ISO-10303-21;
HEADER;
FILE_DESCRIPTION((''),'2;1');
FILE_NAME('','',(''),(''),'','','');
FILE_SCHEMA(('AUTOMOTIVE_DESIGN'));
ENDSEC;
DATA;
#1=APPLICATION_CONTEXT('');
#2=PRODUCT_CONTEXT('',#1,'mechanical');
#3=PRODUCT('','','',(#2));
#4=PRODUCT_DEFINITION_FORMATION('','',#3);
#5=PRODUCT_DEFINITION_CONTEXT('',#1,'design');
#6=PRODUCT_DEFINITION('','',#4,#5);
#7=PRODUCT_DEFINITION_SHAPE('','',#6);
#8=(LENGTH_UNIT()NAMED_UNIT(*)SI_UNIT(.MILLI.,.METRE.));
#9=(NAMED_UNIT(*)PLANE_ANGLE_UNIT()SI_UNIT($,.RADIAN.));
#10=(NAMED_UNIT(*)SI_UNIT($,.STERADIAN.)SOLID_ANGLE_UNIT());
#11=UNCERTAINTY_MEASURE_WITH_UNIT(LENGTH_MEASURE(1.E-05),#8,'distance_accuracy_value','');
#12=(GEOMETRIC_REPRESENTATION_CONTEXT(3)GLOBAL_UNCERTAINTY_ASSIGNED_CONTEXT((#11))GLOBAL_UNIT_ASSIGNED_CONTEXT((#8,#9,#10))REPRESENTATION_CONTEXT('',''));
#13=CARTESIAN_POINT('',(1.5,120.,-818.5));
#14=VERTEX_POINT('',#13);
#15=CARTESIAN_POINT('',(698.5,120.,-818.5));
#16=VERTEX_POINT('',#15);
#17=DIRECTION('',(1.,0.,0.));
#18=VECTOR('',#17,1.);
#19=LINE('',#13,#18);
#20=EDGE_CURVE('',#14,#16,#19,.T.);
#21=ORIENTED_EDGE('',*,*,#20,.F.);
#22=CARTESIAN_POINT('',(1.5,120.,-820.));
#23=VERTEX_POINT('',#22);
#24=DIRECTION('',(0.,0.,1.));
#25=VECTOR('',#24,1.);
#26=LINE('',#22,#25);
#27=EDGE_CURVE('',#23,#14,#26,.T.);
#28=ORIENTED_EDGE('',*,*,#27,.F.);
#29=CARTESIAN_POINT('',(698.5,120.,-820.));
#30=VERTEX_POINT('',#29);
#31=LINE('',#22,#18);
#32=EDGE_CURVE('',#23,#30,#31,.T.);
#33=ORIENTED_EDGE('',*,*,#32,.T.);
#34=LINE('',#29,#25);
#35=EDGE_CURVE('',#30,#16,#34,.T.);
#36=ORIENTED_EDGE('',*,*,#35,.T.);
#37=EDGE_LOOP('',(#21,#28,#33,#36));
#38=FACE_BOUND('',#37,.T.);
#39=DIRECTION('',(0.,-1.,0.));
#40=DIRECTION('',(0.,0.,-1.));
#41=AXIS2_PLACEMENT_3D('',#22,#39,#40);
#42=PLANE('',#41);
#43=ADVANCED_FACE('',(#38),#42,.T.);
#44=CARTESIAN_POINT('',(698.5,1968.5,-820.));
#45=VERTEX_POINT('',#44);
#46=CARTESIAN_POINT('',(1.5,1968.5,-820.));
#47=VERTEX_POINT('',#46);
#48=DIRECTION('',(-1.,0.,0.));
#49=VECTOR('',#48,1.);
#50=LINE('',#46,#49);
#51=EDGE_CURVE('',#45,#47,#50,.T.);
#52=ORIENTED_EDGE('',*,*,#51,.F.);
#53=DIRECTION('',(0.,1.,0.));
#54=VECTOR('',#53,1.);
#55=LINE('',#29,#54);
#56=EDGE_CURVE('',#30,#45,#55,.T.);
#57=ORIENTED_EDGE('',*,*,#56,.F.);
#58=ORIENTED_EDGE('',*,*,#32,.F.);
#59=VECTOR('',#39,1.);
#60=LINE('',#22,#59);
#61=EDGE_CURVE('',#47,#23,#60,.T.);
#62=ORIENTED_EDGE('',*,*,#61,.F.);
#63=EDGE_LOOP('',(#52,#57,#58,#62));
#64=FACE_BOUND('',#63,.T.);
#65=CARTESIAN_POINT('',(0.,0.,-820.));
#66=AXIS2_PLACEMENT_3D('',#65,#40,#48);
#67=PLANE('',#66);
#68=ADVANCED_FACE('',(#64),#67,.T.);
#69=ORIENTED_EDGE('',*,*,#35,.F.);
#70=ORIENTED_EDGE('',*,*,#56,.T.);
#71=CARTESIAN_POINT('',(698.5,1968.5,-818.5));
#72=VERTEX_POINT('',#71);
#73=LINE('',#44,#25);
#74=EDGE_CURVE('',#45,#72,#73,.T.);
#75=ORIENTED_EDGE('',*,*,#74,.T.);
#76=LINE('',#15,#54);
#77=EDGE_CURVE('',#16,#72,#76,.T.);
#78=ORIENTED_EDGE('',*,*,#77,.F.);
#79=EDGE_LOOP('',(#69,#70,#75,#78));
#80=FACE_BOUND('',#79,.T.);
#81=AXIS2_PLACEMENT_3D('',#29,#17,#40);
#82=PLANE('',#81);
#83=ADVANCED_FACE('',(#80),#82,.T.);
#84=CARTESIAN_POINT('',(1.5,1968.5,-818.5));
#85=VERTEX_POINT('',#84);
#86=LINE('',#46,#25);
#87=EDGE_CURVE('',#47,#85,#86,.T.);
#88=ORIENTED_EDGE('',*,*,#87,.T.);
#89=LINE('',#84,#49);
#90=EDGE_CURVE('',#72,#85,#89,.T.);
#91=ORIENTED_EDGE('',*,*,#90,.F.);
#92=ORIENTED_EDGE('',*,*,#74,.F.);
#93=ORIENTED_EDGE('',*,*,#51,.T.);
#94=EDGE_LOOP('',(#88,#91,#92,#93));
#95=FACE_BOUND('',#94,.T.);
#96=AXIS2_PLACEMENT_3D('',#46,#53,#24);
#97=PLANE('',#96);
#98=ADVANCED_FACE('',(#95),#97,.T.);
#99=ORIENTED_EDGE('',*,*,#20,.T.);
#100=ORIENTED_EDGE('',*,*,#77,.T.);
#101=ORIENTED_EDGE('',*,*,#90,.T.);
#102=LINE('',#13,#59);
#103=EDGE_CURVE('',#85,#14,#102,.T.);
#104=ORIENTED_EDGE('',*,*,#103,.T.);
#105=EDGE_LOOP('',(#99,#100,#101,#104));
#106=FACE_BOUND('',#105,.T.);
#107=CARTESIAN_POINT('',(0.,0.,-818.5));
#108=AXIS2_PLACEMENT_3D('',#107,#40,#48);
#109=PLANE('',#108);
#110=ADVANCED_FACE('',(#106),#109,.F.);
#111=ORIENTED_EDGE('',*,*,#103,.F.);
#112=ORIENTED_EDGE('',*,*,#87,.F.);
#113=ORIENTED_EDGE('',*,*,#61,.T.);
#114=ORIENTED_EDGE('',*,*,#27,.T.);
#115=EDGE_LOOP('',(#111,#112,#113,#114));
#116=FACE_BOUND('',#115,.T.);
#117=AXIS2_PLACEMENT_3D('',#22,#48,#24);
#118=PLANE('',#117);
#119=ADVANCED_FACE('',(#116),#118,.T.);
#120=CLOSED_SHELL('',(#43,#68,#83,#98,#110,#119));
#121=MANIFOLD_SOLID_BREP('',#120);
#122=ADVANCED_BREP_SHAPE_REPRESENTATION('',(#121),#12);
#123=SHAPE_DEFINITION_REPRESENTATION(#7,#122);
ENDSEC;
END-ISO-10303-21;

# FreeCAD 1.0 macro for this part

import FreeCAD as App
import Part
import Sketcher
from FreeCAD import Vector
Q = App.Units.Quantity


def add_polygon(sketch, points):
    """Adds a closed chain of lines whose ends are joined by coincident constraints."""
    first, n = sketch.GeometryCount, len(points)
    for a, b in zip(points, points[1:] + points[:1]):
        sketch.addGeometry(Part.LineSegment(App.Vector(*a, 0), App.Vector(*b, 0)), False)
    for i in range(n):
        sketch.addConstraint(Sketcher.Constraint("Coincident", first + i, 2, first + (i + 1) % n, 1))

doc = App.newDocument("Part")
params = doc.addObject("Spreadsheet::Sheet", "Params")
for row, (alias, value) in enumerate([
    ("sketch1_width", "697 mm"),
    ("sketch1_height", "1848.5 mm"),
    ("pad1_length", "1.5 mm"),
], start=1):
    params.set(f"A{row}", alias)
    params.set(f"B{row}", "=" + value)
    params.setAlias(f"B{row}", alias)

body = doc.addObject("PartDesign::Body", "Body")

sketch1 = body.newObject("Sketcher::SketchObject", "Sketch")
sketch1.AttachmentSupport = (doc.getObject("XY_Plane"), [""])
sketch1.MapMode = "FlatFace"
sketch1.AttachmentOffset = App.Placement(Vector(0, 0, -818.5), App.Rotation())
add_polygon(sketch1, [(2, 1968), (2, 120), (698, 120), (698, 1968)])
sketch1.addConstraint(Sketcher.Constraint("Vertical", 0))
sketch1.addConstraint(Sketcher.Constraint("Horizontal", 1))
sketch1.addConstraint(Sketcher.Constraint("Vertical", 2))
sketch1.addConstraint(Sketcher.Constraint("Horizontal", 3))
sketch1.addConstraint(Sketcher.Constraint("DistanceX", 1, 1, 1, 2, Q("697 mm")))
sketch1.addConstraint(Sketcher.Constraint("DistanceY", 0, 2, 0, 1, Q("1848.5 mm")))
sketch1.addConstraint(Sketcher.Constraint("DistanceY", -1, 1, 0, 2, Q("120 mm")))
sketch1.addConstraint(Sketcher.Constraint("DistanceX", -1, 1, 0, 2, Q("1.5 mm")))
sketch1.setExpression("Constraints[8]", "Params.sketch1_width")
sketch1.setExpression("Constraints[9]", "Params.sketch1_height")
pad1 = body.newObject("PartDesign::Pad", "Pad")
pad1.Profile = sketch1
pad1.setExpression("Length", "Params.pad1_length")
pad1.Reversed = True

doc.recompute()
